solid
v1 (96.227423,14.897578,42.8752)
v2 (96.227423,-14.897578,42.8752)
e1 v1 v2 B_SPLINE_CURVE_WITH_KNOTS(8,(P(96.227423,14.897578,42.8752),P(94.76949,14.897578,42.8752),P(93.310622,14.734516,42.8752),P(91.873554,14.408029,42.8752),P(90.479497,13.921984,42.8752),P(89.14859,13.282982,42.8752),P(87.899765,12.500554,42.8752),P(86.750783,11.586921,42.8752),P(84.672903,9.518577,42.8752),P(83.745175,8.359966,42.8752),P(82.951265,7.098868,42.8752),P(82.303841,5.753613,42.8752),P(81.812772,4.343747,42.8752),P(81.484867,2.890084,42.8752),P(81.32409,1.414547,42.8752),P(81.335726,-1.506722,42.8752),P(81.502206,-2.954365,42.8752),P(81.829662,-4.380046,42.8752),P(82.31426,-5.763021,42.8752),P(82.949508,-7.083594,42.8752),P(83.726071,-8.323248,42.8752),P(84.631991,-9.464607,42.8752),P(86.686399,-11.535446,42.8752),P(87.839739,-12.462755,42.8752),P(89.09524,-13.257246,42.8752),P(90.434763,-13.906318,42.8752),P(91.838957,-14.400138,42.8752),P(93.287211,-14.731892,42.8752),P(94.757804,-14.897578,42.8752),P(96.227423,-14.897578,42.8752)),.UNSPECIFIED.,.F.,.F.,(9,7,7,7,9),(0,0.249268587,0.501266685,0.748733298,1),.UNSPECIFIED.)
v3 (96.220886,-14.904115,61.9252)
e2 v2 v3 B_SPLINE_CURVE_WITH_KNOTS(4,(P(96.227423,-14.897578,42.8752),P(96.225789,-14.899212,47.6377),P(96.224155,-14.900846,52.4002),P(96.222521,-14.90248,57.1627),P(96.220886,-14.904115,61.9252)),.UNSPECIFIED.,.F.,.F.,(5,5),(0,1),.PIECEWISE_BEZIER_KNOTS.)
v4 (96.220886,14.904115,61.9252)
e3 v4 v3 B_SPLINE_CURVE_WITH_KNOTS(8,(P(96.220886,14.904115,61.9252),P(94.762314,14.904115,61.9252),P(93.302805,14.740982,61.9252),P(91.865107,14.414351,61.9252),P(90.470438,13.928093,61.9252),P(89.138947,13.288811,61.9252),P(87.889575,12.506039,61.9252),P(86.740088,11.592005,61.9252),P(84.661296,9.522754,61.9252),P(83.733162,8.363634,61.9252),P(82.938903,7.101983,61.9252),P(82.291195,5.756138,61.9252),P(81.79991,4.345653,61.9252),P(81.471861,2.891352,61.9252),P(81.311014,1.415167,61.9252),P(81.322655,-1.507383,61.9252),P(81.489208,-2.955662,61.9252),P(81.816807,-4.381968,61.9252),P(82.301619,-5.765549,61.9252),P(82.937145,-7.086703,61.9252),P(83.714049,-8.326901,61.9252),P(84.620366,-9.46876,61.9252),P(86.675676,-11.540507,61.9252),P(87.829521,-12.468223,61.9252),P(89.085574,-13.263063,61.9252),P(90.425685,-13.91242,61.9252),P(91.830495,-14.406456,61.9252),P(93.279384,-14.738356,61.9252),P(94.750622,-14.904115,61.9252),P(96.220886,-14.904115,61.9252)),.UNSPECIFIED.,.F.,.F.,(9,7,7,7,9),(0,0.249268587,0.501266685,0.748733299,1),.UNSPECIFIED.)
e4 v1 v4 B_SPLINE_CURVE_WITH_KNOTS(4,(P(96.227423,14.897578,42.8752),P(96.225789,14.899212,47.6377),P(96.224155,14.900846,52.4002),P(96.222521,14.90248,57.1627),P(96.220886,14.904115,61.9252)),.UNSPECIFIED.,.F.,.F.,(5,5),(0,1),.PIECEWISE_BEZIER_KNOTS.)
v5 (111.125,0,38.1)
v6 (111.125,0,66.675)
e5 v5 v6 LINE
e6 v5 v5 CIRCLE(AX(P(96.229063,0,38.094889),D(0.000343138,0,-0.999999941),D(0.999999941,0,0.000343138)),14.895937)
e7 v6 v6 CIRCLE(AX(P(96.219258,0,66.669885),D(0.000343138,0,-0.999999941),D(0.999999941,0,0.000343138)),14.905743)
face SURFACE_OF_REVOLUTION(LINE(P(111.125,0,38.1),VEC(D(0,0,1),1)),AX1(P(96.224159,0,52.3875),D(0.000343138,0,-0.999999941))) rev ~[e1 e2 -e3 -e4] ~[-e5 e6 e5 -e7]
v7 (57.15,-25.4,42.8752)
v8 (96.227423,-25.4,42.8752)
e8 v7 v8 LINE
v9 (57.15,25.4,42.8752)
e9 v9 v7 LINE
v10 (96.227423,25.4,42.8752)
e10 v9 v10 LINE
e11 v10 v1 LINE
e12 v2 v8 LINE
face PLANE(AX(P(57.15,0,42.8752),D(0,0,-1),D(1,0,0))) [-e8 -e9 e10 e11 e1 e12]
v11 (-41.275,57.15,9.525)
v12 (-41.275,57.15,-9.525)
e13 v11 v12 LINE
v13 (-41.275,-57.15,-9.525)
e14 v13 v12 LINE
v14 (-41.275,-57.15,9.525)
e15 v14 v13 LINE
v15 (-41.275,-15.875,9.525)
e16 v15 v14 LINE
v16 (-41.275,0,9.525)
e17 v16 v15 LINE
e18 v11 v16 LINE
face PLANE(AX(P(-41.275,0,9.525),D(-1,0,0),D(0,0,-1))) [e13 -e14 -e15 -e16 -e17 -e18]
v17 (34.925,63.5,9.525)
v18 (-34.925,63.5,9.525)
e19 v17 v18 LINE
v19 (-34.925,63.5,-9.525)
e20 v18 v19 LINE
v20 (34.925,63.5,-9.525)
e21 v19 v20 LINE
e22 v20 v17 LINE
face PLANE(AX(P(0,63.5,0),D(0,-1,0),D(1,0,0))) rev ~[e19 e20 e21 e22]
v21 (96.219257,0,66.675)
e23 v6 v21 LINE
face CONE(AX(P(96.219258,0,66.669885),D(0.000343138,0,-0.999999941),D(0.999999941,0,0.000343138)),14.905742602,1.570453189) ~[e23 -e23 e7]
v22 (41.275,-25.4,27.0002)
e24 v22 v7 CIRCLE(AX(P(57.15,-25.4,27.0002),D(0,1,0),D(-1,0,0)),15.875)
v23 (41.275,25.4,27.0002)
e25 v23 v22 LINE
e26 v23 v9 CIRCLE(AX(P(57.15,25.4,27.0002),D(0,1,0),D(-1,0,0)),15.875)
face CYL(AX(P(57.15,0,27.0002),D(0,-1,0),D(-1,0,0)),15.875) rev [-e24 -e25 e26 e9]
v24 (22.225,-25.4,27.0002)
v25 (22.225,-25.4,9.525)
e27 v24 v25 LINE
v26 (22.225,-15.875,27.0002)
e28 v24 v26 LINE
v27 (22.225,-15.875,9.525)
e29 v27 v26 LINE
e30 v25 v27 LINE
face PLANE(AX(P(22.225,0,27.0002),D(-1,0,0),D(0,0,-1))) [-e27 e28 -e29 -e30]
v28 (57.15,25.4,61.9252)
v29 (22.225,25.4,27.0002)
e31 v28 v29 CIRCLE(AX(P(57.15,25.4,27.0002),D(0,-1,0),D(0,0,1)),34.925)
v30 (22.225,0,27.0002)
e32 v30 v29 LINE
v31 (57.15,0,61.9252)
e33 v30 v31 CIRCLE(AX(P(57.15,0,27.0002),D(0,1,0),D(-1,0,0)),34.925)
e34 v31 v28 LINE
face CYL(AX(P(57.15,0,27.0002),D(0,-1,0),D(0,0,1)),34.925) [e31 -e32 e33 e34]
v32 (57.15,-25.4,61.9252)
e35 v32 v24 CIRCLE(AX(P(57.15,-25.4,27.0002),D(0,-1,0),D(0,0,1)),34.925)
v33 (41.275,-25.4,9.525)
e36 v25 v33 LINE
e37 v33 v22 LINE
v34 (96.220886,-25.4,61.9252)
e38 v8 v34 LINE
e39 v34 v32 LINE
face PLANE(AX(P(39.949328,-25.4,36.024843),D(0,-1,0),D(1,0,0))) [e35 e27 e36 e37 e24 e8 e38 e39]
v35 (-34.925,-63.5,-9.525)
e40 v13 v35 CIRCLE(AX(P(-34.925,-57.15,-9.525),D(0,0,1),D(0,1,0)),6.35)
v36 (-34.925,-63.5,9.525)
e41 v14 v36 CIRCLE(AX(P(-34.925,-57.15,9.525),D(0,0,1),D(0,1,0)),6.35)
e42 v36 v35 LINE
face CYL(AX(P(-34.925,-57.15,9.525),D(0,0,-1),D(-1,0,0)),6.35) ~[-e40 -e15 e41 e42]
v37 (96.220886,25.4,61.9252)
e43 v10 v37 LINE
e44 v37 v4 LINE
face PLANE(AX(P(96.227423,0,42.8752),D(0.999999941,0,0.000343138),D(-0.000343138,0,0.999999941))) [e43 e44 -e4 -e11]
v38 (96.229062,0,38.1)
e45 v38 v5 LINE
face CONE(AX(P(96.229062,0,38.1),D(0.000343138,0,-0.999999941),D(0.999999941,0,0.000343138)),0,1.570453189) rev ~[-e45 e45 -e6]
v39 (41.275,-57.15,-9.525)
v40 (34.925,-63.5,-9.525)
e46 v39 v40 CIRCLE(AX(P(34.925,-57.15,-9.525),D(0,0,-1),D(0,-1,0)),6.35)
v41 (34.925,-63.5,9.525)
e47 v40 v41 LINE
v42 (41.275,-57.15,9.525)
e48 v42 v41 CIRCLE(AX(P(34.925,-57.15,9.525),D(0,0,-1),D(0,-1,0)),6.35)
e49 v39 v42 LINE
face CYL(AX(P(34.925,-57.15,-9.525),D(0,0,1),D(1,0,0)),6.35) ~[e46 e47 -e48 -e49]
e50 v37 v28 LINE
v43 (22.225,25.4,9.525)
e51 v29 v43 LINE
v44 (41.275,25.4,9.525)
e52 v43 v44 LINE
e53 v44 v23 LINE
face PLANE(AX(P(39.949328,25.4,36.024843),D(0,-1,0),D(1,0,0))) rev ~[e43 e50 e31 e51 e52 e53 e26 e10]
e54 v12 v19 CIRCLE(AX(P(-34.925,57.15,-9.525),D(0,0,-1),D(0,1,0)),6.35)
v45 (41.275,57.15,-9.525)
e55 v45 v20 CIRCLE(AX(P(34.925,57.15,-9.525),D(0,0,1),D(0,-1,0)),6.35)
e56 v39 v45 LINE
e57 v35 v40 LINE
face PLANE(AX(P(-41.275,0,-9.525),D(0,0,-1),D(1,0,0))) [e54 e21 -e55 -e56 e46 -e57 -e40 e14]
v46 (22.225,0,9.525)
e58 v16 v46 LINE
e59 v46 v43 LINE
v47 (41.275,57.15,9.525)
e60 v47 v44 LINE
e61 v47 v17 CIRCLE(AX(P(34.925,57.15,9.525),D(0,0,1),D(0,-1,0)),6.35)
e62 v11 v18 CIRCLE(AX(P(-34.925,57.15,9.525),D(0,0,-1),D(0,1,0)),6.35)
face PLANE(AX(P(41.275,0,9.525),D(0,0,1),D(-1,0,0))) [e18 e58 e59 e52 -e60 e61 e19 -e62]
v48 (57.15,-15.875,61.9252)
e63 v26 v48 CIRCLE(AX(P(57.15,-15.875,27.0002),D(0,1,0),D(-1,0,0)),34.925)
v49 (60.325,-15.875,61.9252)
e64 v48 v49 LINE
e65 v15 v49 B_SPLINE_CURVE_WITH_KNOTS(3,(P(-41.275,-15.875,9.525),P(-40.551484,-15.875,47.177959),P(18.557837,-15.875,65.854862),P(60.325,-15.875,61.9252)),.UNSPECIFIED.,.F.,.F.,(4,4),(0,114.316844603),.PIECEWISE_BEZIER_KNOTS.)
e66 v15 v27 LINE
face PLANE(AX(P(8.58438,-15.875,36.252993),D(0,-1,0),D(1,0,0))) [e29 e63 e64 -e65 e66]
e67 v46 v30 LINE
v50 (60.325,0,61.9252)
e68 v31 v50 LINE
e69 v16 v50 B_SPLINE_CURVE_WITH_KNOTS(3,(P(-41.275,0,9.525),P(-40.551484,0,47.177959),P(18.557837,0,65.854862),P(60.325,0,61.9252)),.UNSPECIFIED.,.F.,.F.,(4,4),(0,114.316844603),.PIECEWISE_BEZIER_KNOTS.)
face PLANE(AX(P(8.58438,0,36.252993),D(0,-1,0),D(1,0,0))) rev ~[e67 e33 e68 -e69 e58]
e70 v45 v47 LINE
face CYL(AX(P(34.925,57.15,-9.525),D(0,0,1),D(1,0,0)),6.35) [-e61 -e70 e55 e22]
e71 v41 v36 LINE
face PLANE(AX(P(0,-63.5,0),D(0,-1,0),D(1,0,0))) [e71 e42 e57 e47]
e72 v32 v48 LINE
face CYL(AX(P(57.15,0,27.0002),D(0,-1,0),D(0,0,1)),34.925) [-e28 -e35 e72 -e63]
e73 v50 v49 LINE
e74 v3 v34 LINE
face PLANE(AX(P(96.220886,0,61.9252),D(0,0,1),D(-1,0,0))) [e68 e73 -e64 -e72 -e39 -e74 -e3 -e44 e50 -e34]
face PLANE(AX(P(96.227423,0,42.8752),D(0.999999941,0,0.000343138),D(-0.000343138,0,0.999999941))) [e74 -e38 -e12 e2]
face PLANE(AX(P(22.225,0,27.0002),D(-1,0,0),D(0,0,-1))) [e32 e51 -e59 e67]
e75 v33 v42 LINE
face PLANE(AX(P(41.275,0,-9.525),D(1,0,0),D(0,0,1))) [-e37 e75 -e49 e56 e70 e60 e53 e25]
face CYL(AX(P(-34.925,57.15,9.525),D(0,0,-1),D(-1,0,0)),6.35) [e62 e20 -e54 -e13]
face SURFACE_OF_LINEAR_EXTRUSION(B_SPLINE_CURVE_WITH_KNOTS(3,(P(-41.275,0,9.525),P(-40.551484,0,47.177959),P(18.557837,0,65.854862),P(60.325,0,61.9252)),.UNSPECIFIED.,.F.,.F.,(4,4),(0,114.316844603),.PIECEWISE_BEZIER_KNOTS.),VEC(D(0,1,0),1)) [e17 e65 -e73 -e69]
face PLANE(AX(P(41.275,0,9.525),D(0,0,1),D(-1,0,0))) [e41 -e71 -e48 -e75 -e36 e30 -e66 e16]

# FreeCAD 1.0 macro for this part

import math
import FreeCAD as App
import Part
import Sketcher

V = App.Vector
Q = App.Units.Quantity


def edges_at(feature, points):
    """Names of the edges that pass closest to the given points."""
    edges = feature.Shape.Edges
    near = lambda p: min(range(len(edges)), key=lambda i: edges[i].distToShape(Part.Vertex(*p))[0])
    return sorted({f"Edge{near(p) + 1}" for p in points})

doc = App.newDocument("Part")
body = doc.addObject("PartDesign::Body", "Body")

sketch1 = body.newObject("Sketcher::SketchObject", "Sketch")
sketch1.AttachmentSupport = (doc.getObject("XZ_Plane"), [""])
sketch1.MapMode = "FlatFace"
sketch1.addGeometry(Part.LineSegment(V(41, -10, 0), V(41, 10, 0)), False)
sketch1.addGeometry(Part.LineSegment(V(41, 10, 0), V(-41, 10, 0)), False)
sketch1.addGeometry(Part.LineSegment(V(-41, 10, 0), V(-41, -10, 0)), False)
sketch1.addGeometry(Part.LineSegment(V(-41, -10, 0), V(41, -10, 0)), False)
sketch1.addConstraint(Sketcher.Constraint("Coincident", 0, 2, 1, 1))
sketch1.addConstraint(Sketcher.Constraint("Coincident", 1, 2, 2, 1))
sketch1.addConstraint(Sketcher.Constraint("Coincident", 2, 2, 3, 1))
sketch1.addConstraint(Sketcher.Constraint("Coincident", 3, 2, 0, 1))
sketch1.addConstraint(Sketcher.Constraint("Vertical", 0))
sketch1.addConstraint(Sketcher.Constraint("Horizontal", 1))
sketch1.addConstraint(Sketcher.Constraint("Vertical", 2))
sketch1.addConstraint(Sketcher.Constraint("Horizontal", 3))
sketch1.addConstraint(Sketcher.Constraint("Symmetric", 0, 2, 2, 2, -1, 1))
sketch1.addConstraint(Sketcher.Constraint("DistanceX", 1, 2, 1, 1, Q("3.25 in")))
sketch1.addConstraint(Sketcher.Constraint("DistanceY", 0, 1, 0, 2, Q("0.75 in")))
pad1 = body.newObject("PartDesign::Pad", "Pad")
pad1.Profile = sketch1
pad1.Length = Q("5 in")
pad1.Midplane = True

sketch2 = body.newObject("Sketcher::SketchObject", "Sketch001")
sketch2.AttachmentSupport = (doc.getObject("XZ_Plane"), [""])
sketch2.MapMode = "FlatFace"
sketch2.addGeometry(Part.LineSegment(V(22, 10, 0), V(41, 10, 0)), False)
sketch2.addGeometry(Part.LineSegment(V(41, 10, 0), V(41, 27, 0)), False)
sketch2.addGeometry(Part.ArcOfCircle(Part.Circle(V(57, 27, 0), V(0, 0, 1), 16), math.radians(90), math.radians(180)), False)
sketch2.addGeometry(Part.LineSegment(V(57, 43, 0), V(96, 43, 0)), False)
sketch2.addGeometry(Part.LineSegment(V(96, 43, 0), V(96, 62, 0)), False)
sketch2.addGeometry(Part.LineSegment(V(96, 62, 0), V(57, 62, 0)), False)
sketch2.addGeometry(Part.ArcOfCircle(Part.Circle(V(57, 27, 0), V(0, 0, 1), 35), math.radians(90), math.radians(180)), False)
sketch2.addGeometry(Part.LineSegment(V(22, 27, 0), V(22, 10, 0)), False)
sketch2.addConstraint(Sketcher.Constraint("Coincident", 0, 2, 1, 1))
sketch2.addConstraint(Sketcher.Constraint("Tangent", 1, 2, 2, 2))
sketch2.addConstraint(Sketcher.Constraint("Tangent", 2, 1, 3, 1))
sketch2.addConstraint(Sketcher.Constraint("Coincident", 3, 2, 4, 1))
sketch2.addConstraint(Sketcher.Constraint("Coincident", 4, 2, 5, 1))
sketch2.addConstraint(Sketcher.Constraint("Tangent", 5, 2, 6, 1))
sketch2.addConstraint(Sketcher.Constraint("Tangent", 6, 2, 7, 1))
sketch2.addConstraint(Sketcher.Constraint("Coincident", 7, 2, 0, 1))
sketch2.addConstraint(Sketcher.Constraint("Horizontal", 0))
sketch2.addConstraint(Sketcher.Constraint("Vertical", 1))
sketch2.addConstraint(Sketcher.Constraint("Horizontal", 3))
sketch2.addConstraint(Sketcher.Constraint("Horizontal", 5))
sketch2.addConstraint(Sketcher.Constraint("Vertical", 7))
sketch2.addConstraint(Sketcher.Constraint("Coincident", 6, 3, 2, 3))
sketch2.addConstraint(Sketcher.Constraint("Radius", 2, Q("0.625 in")))
sketch2.addConstraint(Sketcher.Constraint("Radius", 6, Q("1.375 in")))
sketch2.addConstraint(Sketcher.Constraint("DistanceY", 1, 1, 1, 2, Q("0.688 in")))
sketch2.addConstraint(Sketcher.Constraint("DistanceX", -1, 1, 2, 3, Q("2.25 in")))
sketch2.addConstraint(Sketcher.Constraint("DistanceY", -1, 1, 2, 3, Q("1.063 in")))
sketch2.addConstraint(Sketcher.Constraint("DistanceX", 3, 1, 3, 2, 39.077423))
sketch2.addConstraint(Sketcher.Constraint("DistanceX", 5, 2, 5, 1, 39.070886))
pad2 = body.newObject("PartDesign::Pad", "Pad001")
pad2.Profile = sketch2
pad2.Length = Q("2 in")
pad2.Midplane = True

sketch3 = body.newObject("Sketcher::SketchObject", "Sketch002")
sketch3.AttachmentSupport = (doc.getObject("XZ_Plane"), [""])
sketch3.MapMode = "FlatFace"
sketch3.addGeometry(Part.LineSegment(V(-41.275, 9.525, 0), V(22.225, 9.525, 0)), False)
sketch3.addGeometry(Part.LineSegment(V(22.225, 9.525, 0), V(22.225, 27.0002, 0)), False)
sketch3.addGeometry(Part.ArcOfCircle(Part.Circle(V(57.15, 27.0002, 0), V(0, 0, 1), 34.925), math.radians(90), math.radians(180)), False)
sketch3.addGeometry(Part.LineSegment(V(57.15, 61.9252, 0), V(60.325, 61.9252, 0)), False)
sketch3.addGeometry(Part.BSplineCurve([V(-41.275, 9.525, 0), V(-40.551484, 47.177959, 0), V(18.557837, 65.854862, 0), V(60.325, 61.9252, 0)], [4, 4], [0, 114.316844603], False, 3, [1, 1, 1, 1], False), False)
sketch3.addConstraint(Sketcher.Constraint("Block", 4))
sketch3.addConstraint(Sketcher.Constraint("Coincident", 0, 2, 1, 1))
sketch3.addConstraint(Sketcher.Constraint("Tangent", 1, 2, 2, 2))
sketch3.addConstraint(Sketcher.Constraint("Tangent", 2, 1, 3, 1))
sketch3.addConstraint(Sketcher.Constraint("Coincident", 3, 2, 4, 2))
sketch3.addConstraint(Sketcher.Constraint("Coincident", 4, 1, 0, 1))
sketch3.addConstraint(Sketcher.Constraint("Horizontal", 0))
sketch3.addConstraint(Sketcher.Constraint("Vertical", 1))
sketch3.addConstraint(Sketcher.Constraint("Horizontal", 3))
sketch3.addConstraint(Sketcher.Constraint("DistanceX", 0, 1, 0, 2, Q("2.5 in")))
sketch3.addConstraint(Sketcher.Constraint("Radius", 2, Q("1.375 in")))
pad3 = body.newObject("PartDesign::Pad", "Pad002")
pad3.Profile = sketch3
pad3.Length = Q("0.625 in")

sketch4 = body.newObject("Sketcher::SketchObject", "Sketch003")
sketch4.AttachmentSupport = (doc.getObject("XZ_Plane"), [""])
sketch4.MapMode = "FlatFace"
sketch4.addGeometry(Part.LineSegment(V(96.2, 66.7, 0), V(96.2, 61.9, 0)), False)
sketch4.addGeometry(Part.LineSegment(V(96.2, 61.9, 0), V(96.2, 42.9, 0)), False)
sketch4.addGeometry(Part.LineSegment(V(96.2, 42.9, 0), V(96.2, 38.1, 0)), False)
sketch4.addGeometry(Part.LineSegment(V(96.2, 38.1, 0), V(111.1, 38.1, 0)), False)
sketch4.addGeometry(Part.LineSegment(V(111.1, 38.1, 0), V(111.1, 66.7, 0)), False)
sketch4.addGeometry(Part.LineSegment(V(111.1, 66.7, 0), V(96.2, 66.7, 0)), False)
sketch4.addGeometry(Part.LineSegment(V(96.2, 66.7, 0), V(96.2, 38.1, 0)), True)
sketch4.addConstraint(Sketcher.Constraint("Coincident", 0, 2, 1, 1))
sketch4.addConstraint(Sketcher.Constraint("Coincident", 1, 2, 2, 1))
sketch4.addConstraint(Sketcher.Constraint("Coincident", 2, 2, 3, 1))
sketch4.addConstraint(Sketcher.Constraint("Coincident", 3, 2, 4, 1))
sketch4.addConstraint(Sketcher.Constraint("Coincident", 4, 2, 5, 1))
sketch4.addConstraint(Sketcher.Constraint("Coincident", 5, 2, 0, 1))
sketch4.addConstraint(Sketcher.Constraint("Horizontal", 3))
sketch4.addConstraint(Sketcher.Constraint("Vertical", 4))
sketch4.addConstraint(Sketcher.Constraint("Horizontal", 5))
sketch4.addConstraint(Sketcher.Constraint("Coincident", 6, 1, 5, 2))
sketch4.addConstraint(Sketcher.Constraint("Parallel", 0, 1))
sketch4.addConstraint(Sketcher.Constraint("Parallel", 1, 2))
sketch4.addConstraint(Sketcher.Constraint("Parallel", 2, 6))
sketch4.addConstraint(Sketcher.Constraint("DistanceY", -1, 1, 2, 2, Q("1.5 in")))
sketch4.addConstraint(Sketcher.Constraint("Distance", 1, Q("0.75 in")))
sketch4.addConstraint(Sketcher.Constraint("DistanceY", 4, 1, 4, 2, Q("1.125 in")))
sketch4.addConstraint(Sketcher.Constraint("Distance", 0, Q("0.187 in")))
sketch4.addConstraint(Sketcher.Constraint("DistanceX", -1, 1, 3, 2, Q("4.375 in")))
sketch4.addConstraint(Sketcher.Constraint("DistanceX", 3, 1, 3, 2, 14.895938))
sketch4.addConstraint(Sketcher.Constraint("DistanceX", 5, 2, 5, 1, 14.905743))
sketch4.addConstraint(Sketcher.Constraint("DistanceY", -1, 1, 6, 2, 38.094889))
revolution = body.newObject("PartDesign::Revolution", "Revolution")
revolution.Profile = sketch4
revolution.ReferenceAxis = (sketch4, ["Axis0"])
revolution.Angle = 360
doc.recompute()

fillet = body.newObject("PartDesign::Fillet", "Fillet")
fillet.Base = (revolution, edges_at(revolution, [
    (41.275, -63.5, 0),
    (-41.275, -63.5, 0),
    (-41.275, 63.5, 0),
    (41.275, 63.5, 0),
]))
fillet.Radius = Q("0.25 in")

doc.recompute()
